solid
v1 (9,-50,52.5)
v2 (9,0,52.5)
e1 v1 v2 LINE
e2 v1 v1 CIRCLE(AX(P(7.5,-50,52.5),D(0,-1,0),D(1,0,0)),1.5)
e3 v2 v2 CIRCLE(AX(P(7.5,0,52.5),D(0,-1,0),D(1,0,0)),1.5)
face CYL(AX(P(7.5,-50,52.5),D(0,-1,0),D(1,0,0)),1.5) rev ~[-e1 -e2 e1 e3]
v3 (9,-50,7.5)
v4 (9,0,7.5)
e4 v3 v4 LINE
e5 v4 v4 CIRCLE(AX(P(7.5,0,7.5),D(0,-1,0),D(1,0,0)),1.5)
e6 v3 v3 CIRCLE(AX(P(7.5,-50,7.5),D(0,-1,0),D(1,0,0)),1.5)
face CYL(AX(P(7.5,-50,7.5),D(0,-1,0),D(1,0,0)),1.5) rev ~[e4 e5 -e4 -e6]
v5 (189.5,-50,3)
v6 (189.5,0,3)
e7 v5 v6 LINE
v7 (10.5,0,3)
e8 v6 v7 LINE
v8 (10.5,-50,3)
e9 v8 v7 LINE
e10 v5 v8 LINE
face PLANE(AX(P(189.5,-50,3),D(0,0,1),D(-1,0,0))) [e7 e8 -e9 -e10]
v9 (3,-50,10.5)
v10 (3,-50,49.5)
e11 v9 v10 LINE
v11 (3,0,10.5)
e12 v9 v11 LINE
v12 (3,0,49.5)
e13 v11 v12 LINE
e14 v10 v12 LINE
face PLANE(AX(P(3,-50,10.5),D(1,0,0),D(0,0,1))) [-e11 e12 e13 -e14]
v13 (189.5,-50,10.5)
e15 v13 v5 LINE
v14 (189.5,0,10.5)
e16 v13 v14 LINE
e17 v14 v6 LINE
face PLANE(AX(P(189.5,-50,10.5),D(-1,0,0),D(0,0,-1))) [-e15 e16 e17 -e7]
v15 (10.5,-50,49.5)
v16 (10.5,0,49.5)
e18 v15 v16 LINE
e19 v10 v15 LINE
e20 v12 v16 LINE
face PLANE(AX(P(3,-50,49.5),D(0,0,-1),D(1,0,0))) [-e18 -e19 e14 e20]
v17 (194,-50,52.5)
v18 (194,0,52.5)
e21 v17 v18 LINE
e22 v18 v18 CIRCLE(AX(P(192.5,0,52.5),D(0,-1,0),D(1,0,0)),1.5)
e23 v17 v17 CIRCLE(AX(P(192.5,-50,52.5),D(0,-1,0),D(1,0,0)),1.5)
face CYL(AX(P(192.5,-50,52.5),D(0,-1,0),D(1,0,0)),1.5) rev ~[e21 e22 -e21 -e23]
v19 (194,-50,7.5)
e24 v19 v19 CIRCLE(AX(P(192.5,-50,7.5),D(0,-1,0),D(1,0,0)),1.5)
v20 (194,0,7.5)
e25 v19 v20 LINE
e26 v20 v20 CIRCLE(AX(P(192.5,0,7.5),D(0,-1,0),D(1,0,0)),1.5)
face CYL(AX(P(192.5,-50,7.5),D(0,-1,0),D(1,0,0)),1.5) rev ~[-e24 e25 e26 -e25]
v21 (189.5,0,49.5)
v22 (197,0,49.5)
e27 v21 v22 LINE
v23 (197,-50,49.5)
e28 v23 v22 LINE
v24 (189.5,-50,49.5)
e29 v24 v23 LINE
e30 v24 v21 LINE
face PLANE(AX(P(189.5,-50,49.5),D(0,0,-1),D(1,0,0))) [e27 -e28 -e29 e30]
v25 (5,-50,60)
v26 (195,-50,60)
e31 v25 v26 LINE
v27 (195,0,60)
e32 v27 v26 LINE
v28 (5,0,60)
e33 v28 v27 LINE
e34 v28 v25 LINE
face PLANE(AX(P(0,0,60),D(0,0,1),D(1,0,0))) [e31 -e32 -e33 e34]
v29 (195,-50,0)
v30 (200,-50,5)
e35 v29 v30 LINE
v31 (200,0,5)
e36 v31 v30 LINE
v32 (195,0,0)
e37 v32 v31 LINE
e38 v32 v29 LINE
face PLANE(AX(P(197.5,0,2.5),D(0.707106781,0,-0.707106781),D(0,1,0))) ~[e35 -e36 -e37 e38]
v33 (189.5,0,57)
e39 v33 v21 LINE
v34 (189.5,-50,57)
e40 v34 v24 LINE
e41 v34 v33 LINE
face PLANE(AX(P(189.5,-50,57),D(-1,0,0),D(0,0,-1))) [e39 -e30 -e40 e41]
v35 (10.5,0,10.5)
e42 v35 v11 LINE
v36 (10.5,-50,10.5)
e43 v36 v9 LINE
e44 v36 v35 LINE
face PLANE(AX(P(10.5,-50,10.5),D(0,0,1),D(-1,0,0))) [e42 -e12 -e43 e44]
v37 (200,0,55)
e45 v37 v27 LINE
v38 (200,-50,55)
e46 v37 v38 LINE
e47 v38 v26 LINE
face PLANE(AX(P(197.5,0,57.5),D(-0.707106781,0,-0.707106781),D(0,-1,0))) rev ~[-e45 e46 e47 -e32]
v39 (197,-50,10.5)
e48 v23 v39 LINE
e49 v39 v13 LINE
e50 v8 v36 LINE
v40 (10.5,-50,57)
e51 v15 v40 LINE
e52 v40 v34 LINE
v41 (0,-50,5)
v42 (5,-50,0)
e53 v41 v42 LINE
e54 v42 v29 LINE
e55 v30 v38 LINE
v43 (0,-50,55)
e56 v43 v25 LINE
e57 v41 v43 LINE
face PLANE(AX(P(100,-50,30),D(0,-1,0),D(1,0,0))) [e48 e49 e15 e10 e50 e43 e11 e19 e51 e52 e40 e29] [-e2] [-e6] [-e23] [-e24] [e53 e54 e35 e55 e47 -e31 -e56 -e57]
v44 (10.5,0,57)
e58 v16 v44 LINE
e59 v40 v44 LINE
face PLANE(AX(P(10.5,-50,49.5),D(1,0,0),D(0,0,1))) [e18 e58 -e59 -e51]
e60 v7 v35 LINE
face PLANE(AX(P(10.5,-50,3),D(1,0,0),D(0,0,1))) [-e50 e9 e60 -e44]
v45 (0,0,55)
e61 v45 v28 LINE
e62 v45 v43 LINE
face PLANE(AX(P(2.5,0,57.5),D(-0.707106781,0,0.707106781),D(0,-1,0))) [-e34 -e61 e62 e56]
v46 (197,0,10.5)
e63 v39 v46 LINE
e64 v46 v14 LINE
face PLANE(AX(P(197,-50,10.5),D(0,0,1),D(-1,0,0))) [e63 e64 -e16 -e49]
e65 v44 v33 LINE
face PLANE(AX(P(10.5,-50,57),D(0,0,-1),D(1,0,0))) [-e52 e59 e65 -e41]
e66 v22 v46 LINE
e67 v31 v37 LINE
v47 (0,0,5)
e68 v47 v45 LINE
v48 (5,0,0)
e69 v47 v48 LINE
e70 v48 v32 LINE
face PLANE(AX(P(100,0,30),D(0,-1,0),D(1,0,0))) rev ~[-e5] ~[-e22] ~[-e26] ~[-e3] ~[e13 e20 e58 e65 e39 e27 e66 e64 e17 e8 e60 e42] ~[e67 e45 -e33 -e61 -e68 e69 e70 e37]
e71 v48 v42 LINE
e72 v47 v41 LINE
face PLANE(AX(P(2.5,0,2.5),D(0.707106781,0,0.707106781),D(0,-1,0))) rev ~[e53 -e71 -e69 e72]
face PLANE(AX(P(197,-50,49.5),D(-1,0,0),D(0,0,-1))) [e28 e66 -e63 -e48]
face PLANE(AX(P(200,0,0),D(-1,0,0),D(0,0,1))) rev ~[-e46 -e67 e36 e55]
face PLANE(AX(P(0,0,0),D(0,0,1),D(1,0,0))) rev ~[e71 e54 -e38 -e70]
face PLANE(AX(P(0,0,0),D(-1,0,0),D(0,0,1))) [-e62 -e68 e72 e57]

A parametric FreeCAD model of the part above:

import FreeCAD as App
import Part
import Sketcher


def edges_at(feature, points):
    """Names of the edges that pass closest to the given points."""
    edges = feature.Shape.Edges
    near = lambda p: min(range(len(edges)), key=lambda i: edges[i].distToShape(Part.Vertex(*p))[0])
    return sorted({f"Edge{near(p) + 1}" for p in points})


def add_polygon(sketch, points):
    """Adds a closed chain of lines whose ends are joined by coincident constraints."""
    first, n = sketch.GeometryCount, len(points)
    for a, b in zip(points, points[1:] + points[:1]):
        sketch.addGeometry(Part.LineSegment(App.Vector(*a, 0), App.Vector(*b, 0)), False)
    for i in range(n):
        sketch.addConstraint(Sketcher.Constraint("Coincident", first + i, 2, first + (i + 1) % n, 1))

doc = App.newDocument("Part")
params = doc.addObject("Spreadsheet::Sheet", "Params")
for row, (alias, value) in enumerate([
    ("sketch1_width", "200 mm"),
    ("sketch1_height", "60 mm"),
    ("pad1_length", "50 mm"),
    ("chamfer_size", "5 mm"),
    ("sketch2_diameter", "3 mm"),
    ("sketch2_width", "179 mm"),
    ("sketch2_height", "39 mm"),
    ("sketch2_width2", "7.5 mm"),
], start=1):
    params.set(f"A{row}", alias)
    params.set(f"B{row}", "=" + value)
    params.setAlias(f"B{row}", alias)

body = doc.addObject("PartDesign::Body", "Body")

# Sketch on XZ plane
sketch1 = body.newObject("Sketcher::SketchObject", "Sketch")
sketch1.AttachmentSupport = (doc.getObject("XZ_Plane"), [""])
sketch1.MapMode = "FlatFace"
add_polygon(sketch1, [(0, 60), (0, 0), (200, 0), (200, 60)])  # lines 0-3
sketch1.addConstraint([
    Sketcher.Constraint("Vertical", 0),
    Sketcher.Constraint("Horizontal", 1),
    Sketcher.Constraint("Vertical", 2),
    Sketcher.Constraint("Horizontal", 3),
    Sketcher.Constraint("Coincident", 0, 2, -1, 1),
    Sketcher.Constraint("DistanceX", 1, 1, 1, 2, 200.0),
    Sketcher.Constraint("DistanceY", 0, 2, 0, 1, 60.0),
])
sketch1.setExpression("Constraints[9]", "Params.sketch1_width")
sketch1.setExpression("Constraints[10]", "Params.sketch1_height")
pad1 = body.newObject("PartDesign::Pad", "Pad")
pad1.Profile = sketch1
pad1.setExpression("Length", "Params.pad1_length")
doc.recompute()

chamfer = body.newObject("PartDesign::Chamfer", "Chamfer")
chamfer.Base = (pad1, edges_at(pad1, [
    (200, -25, 0),
    (200, -25, 60),
    (0, -25, 60),
    (0, -25, 0),
]))
chamfer.setExpression("Size", "Params.chamfer_size")

# Sketch on XZ plane
sketch2 = body.newObject("Sketcher::SketchObject", "Sketch001")
sketch2.AttachmentSupport = (doc.getObject("XZ_Plane"), [""])
sketch2.MapMode = "FlatFace"
sketch2.AttachmentOffset = App.Placement(App.Vector(0, 0, 50), App.Rotation())
sketch2.addGeometry(Part.Circle(App.Vector(7.5, 52.5, 0), App.Vector(0, 0, 1), 1.5), False)  # 0
sketch2.addGeometry(Part.Circle(App.Vector(192.5, 52.5, 0), App.Vector(0, 0, 1), 1.5), False)  # 1
sketch2.addGeometry(Part.Circle(App.Vector(192.5, 7.5, 0), App.Vector(0, 0, 1), 1.5), False)  # 2
sketch2.addGeometry(Part.Circle(App.Vector(7.5, 7.5, 0), App.Vector(0, 0, 1), 1.5), False)  # 3
add_polygon(sketch2, [(189.5, 57), (10.5, 57), (10.5, 49.5), (3, 49.5), (3, 10.5), (10.5, 10.5), (10.5, 3), (189.5, 3), (189.5, 10.5), (197, 10.5), (197, 49.5), (189.5, 49.5)])  # lines 4-15
sketch2.addConstraint([
    Sketcher.Constraint("Horizontal", 4),
    Sketcher.Constraint("Vertical", 5),
    Sketcher.Constraint("Horizontal", 6),
    Sketcher.Constraint("Vertical", 7),
    Sketcher.Constraint("Horizontal", 8),
    Sketcher.Constraint("Vertical", 9),
    Sketcher.Constraint("Horizontal", 10),
    Sketcher.Constraint("Vertical", 11),
    Sketcher.Constraint("Horizontal", 12),
    Sketcher.Constraint("Vertical", 13),
    Sketcher.Constraint("Horizontal", 14),
    Sketcher.Constraint("Vertical", 15),
    Sketcher.Constraint("Equal", 0, 1),
    Sketcher.Constraint("Equal", 1, 2),
    Sketcher.Constraint("Equal", 2, 3),
    Sketcher.Constraint("Horizontal", 0, 3, 1, 3),
    Sketcher.Constraint("Horizontal", 2, 3, 3, 3),
    Sketcher.Constraint("Horizontal", 8, 2, 11, 2),
    Sketcher.Constraint("Horizontal", 6, 2, 13, 2),
    Sketcher.Constraint("Vertical", 1, 3, 2, 3),
    Sketcher.Constraint("Vertical", 0, 3, 3, 3),
    Sketcher.Constraint("Vertical", 5, 2, 8, 2),
    Sketcher.Constraint("Vertical", 11, 2, 14, 2),
    Sketcher.Constraint("Equal", 8, 12),
    Sketcher.Constraint("Equal", 14, 5),
    Sketcher.Constraint("Equal", 5, 9),
    Sketcher.Constraint("Diameter", 0, 3.0),
    Sketcher.Constraint("DistanceX", 4, 2, 4, 1, 179.0),
    Sketcher.Constraint("DistanceY", 7, 2, 7, 1, 39.0),
    Sketcher.Constraint("DistanceX", 6, 2, 6, 1, 7.5),
    Sketcher.Constraint("DistanceY", -1, 1, 4, 2, 57.0),
    Sketcher.Constraint("DistanceX", -1, 1, 6, 2, 3.0),
    Sketcher.Constraint("DistanceX", 0, 3, 1, 3, 185.0),
    Sketcher.Constraint("DistanceY", 2, 3, 1, 3, 45.0),
    Sketcher.Constraint("DistanceX", 0, 3, 4, 2, 3.0),
    Sketcher.Constraint("DistanceY", 5, 2, 0, 3, 3.0),
])
sketch2.setExpression("Constraints[38]", "Params.sketch2_diameter")
sketch2.setExpression("Constraints[39]", "Params.sketch2_width")
sketch2.setExpression("Constraints[40]", "Params.sketch2_height")
sketch2.setExpression("Constraints[41]", "Params.sketch2_width2")
pocket1 = body.newObject("PartDesign::Pocket", "Pocket")
pocket1.Profile = sketch2
pocket1.Type = "ThroughAll"

doc.recompute()
